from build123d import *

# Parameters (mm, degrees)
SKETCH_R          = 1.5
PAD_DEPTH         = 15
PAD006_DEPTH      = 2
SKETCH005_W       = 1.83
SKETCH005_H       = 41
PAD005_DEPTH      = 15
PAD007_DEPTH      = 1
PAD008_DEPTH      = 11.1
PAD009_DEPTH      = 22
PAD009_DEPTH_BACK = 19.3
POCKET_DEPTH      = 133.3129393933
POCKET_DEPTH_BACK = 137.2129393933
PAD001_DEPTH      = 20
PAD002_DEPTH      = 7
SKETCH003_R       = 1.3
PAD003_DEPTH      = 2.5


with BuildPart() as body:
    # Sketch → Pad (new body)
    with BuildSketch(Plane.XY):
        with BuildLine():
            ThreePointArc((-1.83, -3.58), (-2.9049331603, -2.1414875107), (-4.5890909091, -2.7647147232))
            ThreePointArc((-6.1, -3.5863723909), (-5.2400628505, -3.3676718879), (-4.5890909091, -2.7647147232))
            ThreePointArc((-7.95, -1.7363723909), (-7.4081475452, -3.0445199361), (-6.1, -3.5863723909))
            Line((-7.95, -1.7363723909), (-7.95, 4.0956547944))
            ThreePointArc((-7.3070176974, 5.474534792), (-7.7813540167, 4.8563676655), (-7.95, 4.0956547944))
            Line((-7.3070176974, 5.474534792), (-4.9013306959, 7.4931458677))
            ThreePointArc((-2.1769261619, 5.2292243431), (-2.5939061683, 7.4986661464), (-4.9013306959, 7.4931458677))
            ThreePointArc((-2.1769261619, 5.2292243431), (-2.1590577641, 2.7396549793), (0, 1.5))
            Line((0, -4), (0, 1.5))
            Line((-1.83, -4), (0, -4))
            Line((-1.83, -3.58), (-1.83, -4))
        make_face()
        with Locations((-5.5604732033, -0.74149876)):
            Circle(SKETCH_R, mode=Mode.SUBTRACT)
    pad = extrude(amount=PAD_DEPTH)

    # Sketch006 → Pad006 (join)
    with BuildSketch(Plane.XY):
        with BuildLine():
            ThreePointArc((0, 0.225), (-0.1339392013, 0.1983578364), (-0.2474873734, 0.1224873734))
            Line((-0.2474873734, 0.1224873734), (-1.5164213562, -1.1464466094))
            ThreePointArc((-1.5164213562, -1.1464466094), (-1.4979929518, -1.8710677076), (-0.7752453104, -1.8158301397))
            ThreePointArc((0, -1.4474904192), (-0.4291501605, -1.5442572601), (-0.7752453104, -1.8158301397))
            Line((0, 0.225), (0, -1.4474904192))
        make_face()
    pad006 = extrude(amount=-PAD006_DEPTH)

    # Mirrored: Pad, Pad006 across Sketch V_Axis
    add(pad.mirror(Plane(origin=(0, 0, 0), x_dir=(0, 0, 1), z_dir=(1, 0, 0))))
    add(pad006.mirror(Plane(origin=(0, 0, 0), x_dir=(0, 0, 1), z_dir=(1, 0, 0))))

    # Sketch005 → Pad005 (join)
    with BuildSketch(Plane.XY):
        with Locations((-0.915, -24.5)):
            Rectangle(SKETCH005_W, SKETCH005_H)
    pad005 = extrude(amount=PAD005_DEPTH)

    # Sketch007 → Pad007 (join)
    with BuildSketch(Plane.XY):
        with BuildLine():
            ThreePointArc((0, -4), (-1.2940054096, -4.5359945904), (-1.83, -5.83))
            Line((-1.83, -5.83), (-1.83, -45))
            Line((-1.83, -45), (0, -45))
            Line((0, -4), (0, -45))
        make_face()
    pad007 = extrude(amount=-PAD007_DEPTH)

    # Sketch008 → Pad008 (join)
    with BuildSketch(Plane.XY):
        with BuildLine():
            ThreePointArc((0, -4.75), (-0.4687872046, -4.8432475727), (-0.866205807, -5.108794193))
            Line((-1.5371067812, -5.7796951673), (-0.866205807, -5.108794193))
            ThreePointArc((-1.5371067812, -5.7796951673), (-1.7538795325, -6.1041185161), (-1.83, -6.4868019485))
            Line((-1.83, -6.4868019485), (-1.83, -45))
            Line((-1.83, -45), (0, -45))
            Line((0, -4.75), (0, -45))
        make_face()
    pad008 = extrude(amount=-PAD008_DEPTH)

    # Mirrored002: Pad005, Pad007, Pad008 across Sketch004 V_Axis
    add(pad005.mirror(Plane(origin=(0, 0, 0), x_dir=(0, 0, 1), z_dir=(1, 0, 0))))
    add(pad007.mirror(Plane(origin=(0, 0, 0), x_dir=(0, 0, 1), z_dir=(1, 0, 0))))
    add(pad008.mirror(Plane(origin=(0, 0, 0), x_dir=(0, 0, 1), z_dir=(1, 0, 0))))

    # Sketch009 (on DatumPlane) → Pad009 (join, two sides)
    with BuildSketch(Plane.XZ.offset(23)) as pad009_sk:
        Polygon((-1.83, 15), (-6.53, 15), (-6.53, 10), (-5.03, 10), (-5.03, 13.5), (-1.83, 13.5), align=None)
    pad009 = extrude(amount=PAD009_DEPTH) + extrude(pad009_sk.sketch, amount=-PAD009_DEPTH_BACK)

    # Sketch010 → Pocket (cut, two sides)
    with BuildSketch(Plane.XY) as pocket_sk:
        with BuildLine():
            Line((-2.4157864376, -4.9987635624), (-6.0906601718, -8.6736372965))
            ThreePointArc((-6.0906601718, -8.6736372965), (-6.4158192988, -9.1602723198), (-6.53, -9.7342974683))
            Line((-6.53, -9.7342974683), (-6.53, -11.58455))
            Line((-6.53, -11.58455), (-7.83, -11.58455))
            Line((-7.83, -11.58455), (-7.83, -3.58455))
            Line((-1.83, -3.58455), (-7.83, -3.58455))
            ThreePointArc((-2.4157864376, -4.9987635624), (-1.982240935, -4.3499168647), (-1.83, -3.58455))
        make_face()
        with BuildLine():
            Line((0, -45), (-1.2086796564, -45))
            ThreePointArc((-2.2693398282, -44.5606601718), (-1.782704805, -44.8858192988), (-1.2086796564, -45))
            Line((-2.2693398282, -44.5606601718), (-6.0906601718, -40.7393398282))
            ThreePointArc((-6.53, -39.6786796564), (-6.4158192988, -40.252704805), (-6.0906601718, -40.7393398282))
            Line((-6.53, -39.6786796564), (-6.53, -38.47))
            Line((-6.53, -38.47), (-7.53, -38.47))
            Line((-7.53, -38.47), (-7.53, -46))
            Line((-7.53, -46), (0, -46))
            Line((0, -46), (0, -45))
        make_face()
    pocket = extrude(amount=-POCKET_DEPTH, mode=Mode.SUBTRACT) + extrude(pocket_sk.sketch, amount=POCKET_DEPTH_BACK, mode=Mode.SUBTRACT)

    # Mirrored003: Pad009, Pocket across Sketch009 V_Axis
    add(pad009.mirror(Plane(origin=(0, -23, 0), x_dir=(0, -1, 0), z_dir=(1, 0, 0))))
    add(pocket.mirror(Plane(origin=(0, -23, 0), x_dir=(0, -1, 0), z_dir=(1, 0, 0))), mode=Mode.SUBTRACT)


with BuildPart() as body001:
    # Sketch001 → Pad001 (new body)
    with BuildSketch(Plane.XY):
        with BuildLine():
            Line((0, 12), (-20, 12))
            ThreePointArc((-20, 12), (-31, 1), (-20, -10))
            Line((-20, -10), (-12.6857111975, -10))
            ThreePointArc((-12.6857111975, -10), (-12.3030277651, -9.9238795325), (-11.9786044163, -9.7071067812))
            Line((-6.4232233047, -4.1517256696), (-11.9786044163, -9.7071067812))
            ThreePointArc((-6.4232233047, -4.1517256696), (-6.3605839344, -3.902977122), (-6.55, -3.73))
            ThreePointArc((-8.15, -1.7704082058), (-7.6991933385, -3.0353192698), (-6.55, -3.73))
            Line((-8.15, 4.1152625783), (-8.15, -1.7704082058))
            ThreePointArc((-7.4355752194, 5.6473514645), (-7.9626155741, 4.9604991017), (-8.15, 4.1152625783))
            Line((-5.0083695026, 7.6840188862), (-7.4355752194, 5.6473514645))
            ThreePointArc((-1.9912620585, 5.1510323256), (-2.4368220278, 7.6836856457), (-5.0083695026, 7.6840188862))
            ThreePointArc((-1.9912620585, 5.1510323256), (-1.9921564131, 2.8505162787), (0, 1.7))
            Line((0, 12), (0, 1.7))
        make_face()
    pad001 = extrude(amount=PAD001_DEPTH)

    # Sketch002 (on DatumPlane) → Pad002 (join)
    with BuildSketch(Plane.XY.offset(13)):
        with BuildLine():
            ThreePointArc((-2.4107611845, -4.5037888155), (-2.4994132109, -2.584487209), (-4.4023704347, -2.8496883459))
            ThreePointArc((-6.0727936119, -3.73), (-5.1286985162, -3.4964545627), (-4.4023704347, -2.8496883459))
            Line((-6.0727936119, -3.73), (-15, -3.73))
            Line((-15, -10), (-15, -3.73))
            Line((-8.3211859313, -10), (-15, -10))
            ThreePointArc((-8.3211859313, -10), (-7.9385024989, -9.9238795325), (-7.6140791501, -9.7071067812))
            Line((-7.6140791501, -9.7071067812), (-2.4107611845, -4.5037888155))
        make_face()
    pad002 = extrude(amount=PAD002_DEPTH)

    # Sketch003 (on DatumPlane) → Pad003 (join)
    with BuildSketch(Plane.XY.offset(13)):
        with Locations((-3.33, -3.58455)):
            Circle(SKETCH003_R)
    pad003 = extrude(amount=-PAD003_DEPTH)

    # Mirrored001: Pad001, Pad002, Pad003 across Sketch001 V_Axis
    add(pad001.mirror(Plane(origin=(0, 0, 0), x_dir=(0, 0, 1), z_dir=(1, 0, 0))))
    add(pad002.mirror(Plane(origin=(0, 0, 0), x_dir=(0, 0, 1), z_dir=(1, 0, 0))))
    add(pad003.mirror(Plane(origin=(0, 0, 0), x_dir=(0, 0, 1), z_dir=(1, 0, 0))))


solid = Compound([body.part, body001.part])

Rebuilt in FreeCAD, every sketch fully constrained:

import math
import FreeCAD as App
import Part
import Sketcher
Q = App.Units.Quantity


def add_polygon(sketch, points):
    """Adds a closed chain of lines whose ends are joined by coincident constraints."""
    first, n = sketch.GeometryCount, len(points)
    for a, b in zip(points, points[1:] + points[:1]):
        sketch.addGeometry(Part.LineSegment(App.Vector(*a, 0), App.Vector(*b, 0)), False)
    for i in range(n):
        sketch.addConstraint(Sketcher.Constraint("Coincident", first + i, 2, first + (i + 1) % n, 1))

doc = App.newDocument("Part")
params = doc.addObject("Spreadsheet::Sheet", "Params")
for row, (alias, value) in enumerate([
    ("sketch1_diameter", "3 mm"),
    ("sketch1_radius", "2.5 mm"),
    ("sketch1_radius2", "1.8 mm"),
    ("sketch1_radius3", "1.85 mm"),
    ("sketch1_height", "5.5 mm"),
    ("pad1_length", "15 mm"),
    ("sketch2_radius", "1 mm"),
    ("sketch2_radius2", "0.5 mm"),
    ("sketch2_radius3", "0.35 mm"),
    ("pad2_length", "2 mm"),
    ("sketch3_height", "41 mm"),
    ("sketch3_width", "1.83 mm"),
    ("pad3_length", "15 mm"),
    ("sketch4_height", "41 mm"),
    ("sketch4_radius", "1.83 mm"),
    ("pad4_length", "1 mm"),
    ("sketch5_radius", "1 mm"),
    ("sketch5_width", "1.83 mm"),
    ("sketch5_height", "40.25 mm"),
    ("pad5_length", "11.1 mm"),
    ("sketch6_height", "5 mm"),
    ("sketch6_width", "4.7 mm"),
    ("sketch6_width2", "1.5 mm"),
    ("pad6_length", "22 mm"),
    ("pad6_length2", "19.3 mm"),
    ("sketch7_radius", "2 mm"),
    ("sketch7_radius2", "1.5 mm"),
    ("sketch7_width", "6 mm"),
    ("sketch7_width2", "1 mm"),
    ("sketch7_height", "8 mm"),
    ("sketch8_radius", "11 mm"),
    ("sketch8_radius2", "1 mm"),
    ("sketch8_radius3", "2 mm"),
    ("sketch8_radius4", "2.3 mm"),
    ("sketch8_width", "20 mm"),
    ("pad7_length", "20 mm"),
    ("sketch9_radius", "1 mm"),
    ("sketch9_radius2", "1.3 mm"),
    ("sketch9_height", "6.27 mm"),
    ("pad8_length", "7 mm"),
    ("sketch10_diameter", "2.6 mm"),
    ("pad9_length", "2.5 mm"),
], start=1):
    params.set(f"A{row}", alias)
    params.set(f"B{row}", "=" + value)
    params.setAlias(f"B{row}", alias)

body = doc.addObject("PartDesign::Body", "Body")

# Sketch on XY plane
sketch1 = doc.addObject("Sketcher::SketchObject", "Sketch")
body.addObject(sketch1)
sketch1.AttachmentSupport = (doc.XY_Plane, [""])
sketch1.MapMode = "FlatFace"
sketch1.addGeometry(Part.ArcOfCircle(Part.Circle(App.Vector(-3.33, -3.58, 0), App.Vector(0, 0, 1), 1.5), math.radians(0), math.radians(147.076176)), False)
sketch1.addGeometry(Part.LineSegment(App.Vector(-1.83, -3.58, 0), App.Vector(-1.83, -4, 0)), False)
sketch1.addGeometry(Part.LineSegment(App.Vector(-1.83, -4, 0), App.Vector(0, -4, 0)), False)
sketch1.addGeometry(Part.LineSegment(App.Vector(0, -4, 0), App.Vector(0, 1.5, 0)), False)
sketch1.addGeometry(Part.ArcOfCircle(Part.Circle(App.Vector(0, 4, 0), App.Vector(0, 0, 1), 2.5), math.radians(150.548296), math.radians(270)), False)
sketch1.addGeometry(Part.ArcOfCircle(Part.Circle(App.Vector(-3.744313, 6.114266, 0), App.Vector(0, 0, 1), 1.8), math.radians(-29.451704), math.radians(130)), False)
sketch1.addGeometry(Part.LineSegment(App.Vector(-4.901331, 7.493146, 0), App.Vector(-7.307018, 5.474535, 0)), False)
sketch1.addGeometry(Part.ArcOfCircle(Part.Circle(App.Vector(-6.15, 4.095655, 0), App.Vector(0, 0, 1), 1.8), math.radians(130), math.radians(180)), False)
sketch1.addGeometry(Part.LineSegment(App.Vector(-7.95, 4.095655, 0), App.Vector(-7.95, -1.736372, 0)), False)
sketch1.addGeometry(Part.ArcOfCircle(Part.Circle(App.Vector(-6.1, -1.736372, 0), App.Vector(0, 0, 1), 1.85), math.radians(180), math.radians(270)), False)
sketch1.addGeometry(Part.ArcOfCircle(Part.Circle(App.Vector(-6.1, -1.786372, 0), App.Vector(0, 0, 1), 1.8), math.radians(-90), math.radians(-32.923824)), False)
sketch1.addGeometry(Part.Circle(App.Vector(-5.560473, -0.741499, 0), App.Vector(0, 0, 1), 1.5), False)
sketch1.addConstraint(Sketcher.Constraint("Tangent", 0, 1, 1, 1))
sketch1.addConstraint(Sketcher.Constraint("Coincident", 1, 2, 2, 1))
sketch1.addConstraint(Sketcher.Constraint("Coincident", 2, 2, 3, 1))
sketch1.addConstraint(Sketcher.Constraint("Coincident", 3, 2, 4, 2))
sketch1.addConstraint(Sketcher.Constraint("Tangent", 4, 1, 5, 1))
sketch1.addConstraint(Sketcher.Constraint("Tangent", 5, 2, 6, 1))
sketch1.addConstraint(Sketcher.Constraint("Tangent", 6, 2, 7, 1))
sketch1.addConstraint(Sketcher.Constraint("Tangent", 7, 2, 8, 1))
sketch1.addConstraint(Sketcher.Constraint("Tangent", 8, 2, 9, 1))
sketch1.addConstraint(Sketcher.Constraint("Tangent", 9, 2, 10, 1))
sketch1.addConstraint(Sketcher.Constraint("Tangent", 10, 2, 0, 2))
sketch1.addConstraint(Sketcher.Constraint("Vertical", 1))
sketch1.addConstraint(Sketcher.Constraint("Horizontal", 2))
sketch1.addConstraint(Sketcher.Constraint("Vertical", 3))
sketch1.addConstraint(Sketcher.Constraint("Vertical", 8))
sketch1.addConstraint(Sketcher.Constraint("Equal", 5, 7))
sketch1.addConstraint(Sketcher.Constraint("Equal", 7, 10))
sketch1.addConstraint(Sketcher.Constraint("Equal", 0, 11))
sketch1.addConstraint(Sketcher.Constraint("PointOnObject", 4, 3, -2))
sketch1.addConstraint(Sketcher.Constraint("PointOnObject", 2, 2, -2))
sketch1.addConstraint(Sketcher.Constraint("Vertical", 9, 3, 10, 3))
sketch1.addConstraint(Sketcher.Constraint("Diameter", 11, Q("3 mm")))
sketch1.addConstraint(Sketcher.Constraint("Radius", 4, Q("2.5 mm")))
sketch1.addConstraint(Sketcher.Constraint("Radius", 5, Q("1.8 mm")))
sketch1.addConstraint(Sketcher.Constraint("Angle", 6, Q("-140 deg")))
sketch1.addConstraint(Sketcher.Constraint("Radius", 9, Q("1.85 mm")))
sketch1.addConstraint(Sketcher.Constraint("DistanceY", 3, 1, 3, 2, Q("5.5 mm")))
sketch1.addConstraint(Sketcher.Constraint("DistanceY", -1, 1, 4, 3, Q("4 mm")))
sketch1.addConstraint(Sketcher.Constraint("DistanceX", 2, 1, 2, 2, Q("1.83 mm")))
sketch1.addConstraint(Sketcher.Constraint("DistanceY", 1, 2, 1, 1, Q("0.42 mm")))
sketch1.addConstraint(Sketcher.Constraint("DistanceX", 9, 3, -1, 1, Q("6.1 mm")))
sketch1.addConstraint(Sketcher.Constraint("Distance", 6, Q("3.140401 mm")))
sketch1.addConstraint(Sketcher.Constraint("DistanceY", 11, 3, -1, 1, Q("0.741499 mm")))
sketch1.addConstraint(Sketcher.Constraint("DistanceX", 11, 3, 5, 3, Q("1.81616 mm")))
sketch1.setExpression("Constraints[21]", "Params.sketch1_diameter")
sketch1.setExpression("Constraints[22]", "Params.sketch1_radius")
sketch1.setExpression("Constraints[23]", "Params.sketch1_radius2")
sketch1.setExpression("Constraints[25]", "Params.sketch1_radius3")
sketch1.setExpression("Constraints[26]", "Params.sketch1_height")
pad1 = doc.addObject("PartDesign::Pad", "Pad")
body.addObject(pad1)
pad1.Profile = sketch1
pad1.setExpression("Length", "Params.pad1_length")

# Sketch on XY plane
sketch2 = doc.addObject("Sketcher::SketchObject", "Sketch001")
body.addObject(sketch2)
sketch2.AttachmentSupport = (doc.XY_Plane, [""])
sketch2.MapMode = "FlatFace"
sketch2.addGeometry(Part.ArcOfCircle(Part.Circle(App.Vector(0, -0.125, 0), App.Vector(0, 0, 1), 0.35), math.radians(90), math.radians(135)), False)
sketch2.addGeometry(Part.LineSegment(App.Vector(-0.247487, 0.122487, 0), App.Vector(-1.516421, -1.146447, 0)), False)
sketch2.addGeometry(Part.ArcOfCircle(Part.Circle(App.Vector(-1.162868, -1.5, 0), App.Vector(0, 0, 1), 0.5), math.radians(135), math.radians(320.827279)), False)
sketch2.addGeometry(Part.ArcOfCircle(Part.Circle(App.Vector(0, -2.44749, 0), App.Vector(0, 0, 1), 1), math.radians(90), math.radians(140.827279)), False)
sketch2.addGeometry(Part.LineSegment(App.Vector(0, -1.44749, 0), App.Vector(0, 0.225, 0)), False)
sketch2.addConstraint(Sketcher.Constraint("Tangent", 0, 2, 1, 1))
sketch2.addConstraint(Sketcher.Constraint("Tangent", 1, 2, 2, 1))
sketch2.addConstraint(Sketcher.Constraint("Tangent", 2, 2, 3, 2))
sketch2.addConstraint(Sketcher.Constraint("Coincident", 3, 1, 4, 1))
sketch2.addConstraint(Sketcher.Constraint("Coincident", 4, 2, 0, 1))
sketch2.addConstraint(Sketcher.Constraint("Vertical", 4))
sketch2.addConstraint(Sketcher.Constraint("PointOnObject", 0, 3, -2))
sketch2.addConstraint(Sketcher.Constraint("PointOnObject", 3, 3, -2))
sketch2.addConstraint(Sketcher.Constraint("PointOnObject", 3, 1, -2))
sketch2.addConstraint(Sketcher.Constraint("Radius", 3, Q("1 mm")))
sketch2.addConstraint(Sketcher.Constraint("Radius", 2, Q("0.5 mm")))
sketch2.addConstraint(Sketcher.Constraint("Angle", 1, Q("-135 deg")))
sketch2.addConstraint(Sketcher.Constraint("Radius", 0, Q("0.35 mm")))
sketch2.addConstraint(Sketcher.Constraint("DistanceY", 2, 3, -1, 1, Q("1.5 mm")))
sketch2.addConstraint(Sketcher.Constraint("DistanceY", 0, 3, -1, 1, Q("0.125 mm")))
sketch2.setExpression("Constraints[9]", "Params.sketch2_radius")
sketch2.setExpression("Constraints[10]", "Params.sketch2_radius2")
sketch2.setExpression("Constraints[12]", "Params.sketch2_radius3")
pad2 = doc.addObject("PartDesign::Pad", "Pad001")
body.addObject(pad2)
pad2.Profile = sketch2
pad2.setExpression("Length", "Params.pad2_length")
pad2.Reversed = True
doc.recompute()

mirrored = doc.addObject("PartDesign::Mirrored", "Mirrored")
body.addObject(mirrored)
mirrored.Originals = [pad1, pad2]
mirrored.MirrorPlane = (doc.YZ_Plane, [""])
body.Tip = mirrored

# Sketch on XY plane
sketch3 = doc.addObject("Sketcher::SketchObject", "Sketch002")
body.addObject(sketch3)
sketch3.AttachmentSupport = (doc.XY_Plane, [""])
sketch3.MapMode = "FlatFace"
add_polygon(sketch3, [(-1.83, -4), (-1.83, -45), (0, -45), (0, -4)])  # lines 0-3
sketch3.addConstraint(Sketcher.Constraint("Vertical", 0))
sketch3.addConstraint(Sketcher.Constraint("Horizontal", 1))
sketch3.addConstraint(Sketcher.Constraint("Vertical", 2))
sketch3.addConstraint(Sketcher.Constraint("Horizontal", 3))
sketch3.addConstraint(Sketcher.Constraint("PointOnObject", 1, 2, -2))
sketch3.addConstraint(Sketcher.Constraint("DistanceY", 0, 2, 0, 1, Q("41 mm")))
sketch3.addConstraint(Sketcher.Constraint("DistanceY", 0, 2, -1, 1, Q("45 mm")))
sketch3.addConstraint(Sketcher.Constraint("DistanceX", 1, 1, 1, 2, Q("1.83 mm")))
sketch3.setExpression("Constraints[9]", "Params.sketch3_height")
sketch3.setExpression("Constraints[11]", "Params.sketch3_width")
pad3 = doc.addObject("PartDesign::Pad", "Pad002")
body.addObject(pad3)
pad3.Profile = sketch3
pad3.setExpression("Length", "Params.pad3_length")

# Sketch on XY plane
sketch4 = doc.addObject("Sketcher::SketchObject", "Sketch003")
body.addObject(sketch4)
sketch4.AttachmentSupport = (doc.XY_Plane, [""])
sketch4.MapMode = "FlatFace"
sketch4.addGeometry(Part.ArcOfCircle(Part.Circle(App.Vector(0, -5.83, 0), App.Vector(0, 0, 1), 1.83), math.radians(90), math.radians(180)), False)
sketch4.addGeometry(Part.LineSegment(App.Vector(-1.83, -5.83, 0), App.Vector(-1.83, -45, 0)), False)
sketch4.addGeometry(Part.LineSegment(App.Vector(-1.83, -45, 0), App.Vector(0, -45, 0)), False)
sketch4.addGeometry(Part.LineSegment(App.Vector(0, -45, 0), App.Vector(0, -4, 0)), False)
sketch4.addConstraint(Sketcher.Constraint("Tangent", 0, 2, 1, 1))
sketch4.addConstraint(Sketcher.Constraint("Coincident", 1, 2, 2, 1))
sketch4.addConstraint(Sketcher.Constraint("Coincident", 2, 2, 3, 1))
sketch4.addConstraint(Sketcher.Constraint("Coincident", 3, 2, 0, 1))
sketch4.addConstraint(Sketcher.Constraint("Vertical", 1))
sketch4.addConstraint(Sketcher.Constraint("Horizontal", 2))
sketch4.addConstraint(Sketcher.Constraint("Vertical", 3))
sketch4.addConstraint(Sketcher.Constraint("PointOnObject", 0, 3, -2))
sketch4.addConstraint(Sketcher.Constraint("PointOnObject", 2, 2, -2))
sketch4.addConstraint(Sketcher.Constraint("DistanceY", 3, 1, 3, 2, Q("41 mm")))
sketch4.addConstraint(Sketcher.Constraint("Radius", 0, Q("1.83 mm")))
sketch4.addConstraint(Sketcher.Constraint("DistanceY", 1, 2, -1, 1, Q("45 mm")))
sketch4.setExpression("Constraints[9]", "Params.sketch4_height")
sketch4.setExpression("Constraints[10]", "Params.sketch4_radius")
pad4 = doc.addObject("PartDesign::Pad", "Pad003")
body.addObject(pad4)
pad4.Profile = sketch4
pad4.setExpression("Length", "Params.pad4_length")
pad4.Reversed = True

# Sketch on XY plane
sketch5 = doc.addObject("Sketcher::SketchObject", "Sketch004")
body.addObject(sketch5)
sketch5.AttachmentSupport = (doc.XY_Plane, [""])
sketch5.MapMode = "FlatFace"
sketch5.addGeometry(Part.ArcOfCircle(Part.Circle(App.Vector(0, -5.975, 0), App.Vector(0, 0, 1), 1.225), math.radians(90), math.radians(135)), False)
sketch5.addGeometry(Part.LineSegment(App.Vector(-0.866206, -5.108794, 0), App.Vector(-1.537107, -5.779695, 0)), False)
sketch5.addGeometry(Part.ArcOfCircle(Part.Circle(App.Vector(-0.83, -6.486802, 0), App.Vector(0, 0, 1), 1), math.radians(135), math.radians(180)), False)
sketch5.addGeometry(Part.LineSegment(App.Vector(-1.83, -6.486802, 0), App.Vector(-1.83, -45, 0)), False)
sketch5.addGeometry(Part.LineSegment(App.Vector(-1.83, -45, 0), App.Vector(0, -45, 0)), False)
sketch5.addGeometry(Part.LineSegment(App.Vector(0, -45, 0), App.Vector(0, -4.75, 0)), False)
sketch5.addConstraint(Sketcher.Constraint("Tangent", 0, 2, 1, 1))
sketch5.addConstraint(Sketcher.Constraint("Tangent", 1, 2, 2, 1))
sketch5.addConstraint(Sketcher.Constraint("Tangent", 2, 2, 3, 1))
sketch5.addConstraint(Sketcher.Constraint("Coincident", 3, 2, 4, 1))
sketch5.addConstraint(Sketcher.Constraint("Coincident", 4, 2, 5, 1))
sketch5.addConstraint(Sketcher.Constraint("Coincident", 5, 2, 0, 1))
sketch5.addConstraint(Sketcher.Constraint("Vertical", 3))
sketch5.addConstraint(Sketcher.Constraint("Horizontal", 4))
sketch5.addConstraint(Sketcher.Constraint("Vertical", 5))
sketch5.addConstraint(Sketcher.Constraint("PointOnObject", 0, 3, -2))
sketch5.addConstraint(Sketcher.Constraint("PointOnObject", 4, 2, -2))
sketch5.addConstraint(Sketcher.Constraint("Radius", 2, Q("1 mm")))
sketch5.addConstraint(Sketcher.Constraint("Angle", 1, Q("-135 deg")))
sketch5.addConstraint(Sketcher.Constraint("DistanceY", 3, 2, -1, 1, Q("45 mm")))
sketch5.addConstraint(Sketcher.Constraint("Radius", 0, Q("1.225 mm")))
sketch5.addConstraint(Sketcher.Constraint("DistanceX", 4, 1, 4, 2, Q("1.83 mm")))
sketch5.addConstraint(Sketcher.Constraint("DistanceY", 5, 1, 5, 2, Q("40.25 mm")))
sketch5.setExpression("Constraints[11]", "Params.sketch5_radius")
sketch5.setExpression("Constraints[15]", "Params.sketch5_width")
sketch5.setExpression("Constraints[16]", "Params.sketch5_height")
pad5 = doc.addObject("PartDesign::Pad", "Pad004")
body.addObject(pad5)
pad5.Profile = sketch5
pad5.setExpression("Length", "Params.pad5_length")
pad5.Reversed = True
doc.recompute()

mirrored2 = doc.addObject("PartDesign::Mirrored", "Mirrored001")
body.addObject(mirrored2)
mirrored2.Originals = [pad3, pad4, pad5]
mirrored2.MirrorPlane = (doc.YZ_Plane, [""])
body.Tip = mirrored2

# Sketch on XZ plane
sketch6 = doc.addObject("Sketcher::SketchObject", "Sketch005")
body.addObject(sketch6)
sketch6.AttachmentSupport = (doc.XZ_Plane, [""])
sketch6.MapMode = "FlatFace"
sketch6.AttachmentOffset = App.Placement(App.Vector(0, 0, 23), App.Rotation())
add_polygon(sketch6, [(-1.83, 15), (-6.53, 15), (-6.53, 10), (-5.03, 10), (-5.03, 13.5), (-1.83, 13.5)])  # lines 0-5
sketch6.addConstraint(Sketcher.Constraint("Horizontal", 0))
sketch6.addConstraint(Sketcher.Constraint("Vertical", 1))
sketch6.addConstraint(Sketcher.Constraint("Horizontal", 2))
sketch6.addConstraint(Sketcher.Constraint("Vertical", 3))
sketch6.addConstraint(Sketcher.Constraint("Horizontal", 4))
sketch6.addConstraint(Sketcher.Constraint("Vertical", 5))
sketch6.addConstraint(Sketcher.Constraint("Equal", 2, 5))
sketch6.addConstraint(Sketcher.Constraint("DistanceY", 1, 2, 1, 1, Q("5 mm")))
sketch6.addConstraint(Sketcher.Constraint("DistanceX", 0, 2, 0, 1, Q("4.7 mm")))
sketch6.addConstraint(Sketcher.Constraint("DistanceX", 2, 1, 2, 2, Q("1.5 mm")))
sketch6.addConstraint(Sketcher.Constraint("DistanceY", -1, 1, 0, 2, Q("15 mm")))
sketch6.addConstraint(Sketcher.Constraint("DistanceX", 0, 2, -1, 1, Q("6.53 mm")))
sketch6.setExpression("Constraints[13]", "Params.sketch6_height")
sketch6.setExpression("Constraints[14]", "Params.sketch6_width")
sketch6.setExpression("Constraints[15]", "Params.sketch6_width2")
pad6 = doc.addObject("PartDesign::Pad", "Pad005")
body.addObject(pad6)
pad6.Profile = sketch6
pad6.Type = "TwoLengths"
pad6.setExpression("Length", "Params.pad6_length")
pad6.setExpression("Length2", "Params.pad6_length2")

# Sketch on XY plane
sketch7 = doc.addObject("Sketcher::SketchObject", "Sketch006")
body.addObject(sketch7)
sketch7.AttachmentSupport = (doc.XY_Plane, [""])
sketch7.MapMode = "FlatFace"
sketch7.addGeometry(Part.LineSegment(App.Vector(-6.09066, -8.673637, 0), App.Vector(-2.415786, -4.998764, 0)), False)
sketch7.addGeometry(Part.ArcOfCircle(Part.Circle(App.Vector(-3.83, -3.58455, 0), App.Vector(0, 0, 1), 2), math.radians(-45), math.radians(0)), False)
sketch7.addGeometry(Part.LineSegment(App.Vector(-1.83, -3.58455, 0), App.Vector(-7.83, -3.58455, 0)), False)
sketch7.addGeometry(Part.LineSegment(App.Vector(-7.83, -3.58455, 0), App.Vector(-7.83, -11.58455, 0)), False)
sketch7.addGeometry(Part.LineSegment(App.Vector(-7.83, -11.58455, 0), App.Vector(-6.53, -11.58455, 0)), False)
sketch7.addGeometry(Part.LineSegment(App.Vector(-6.53, -11.58455, 0), App.Vector(-6.53, -9.734297, 0)), False)
sketch7.addGeometry(Part.ArcOfCircle(Part.Circle(App.Vector(-5.03, -9.734297, 0), App.Vector(0, 0, 1), 1.5), math.radians(135), math.radians(180)), False)
sketch7.addGeometry(Part.LineSegment(App.Vector(0, -45, 0), App.Vector(-1.20868, -45, 0)), False)
sketch7.addGeometry(Part.ArcOfCircle(Part.Circle(App.Vector(-1.20868, -43.5, 0), App.Vector(0, 0, 1), 1.5), math.radians(-135), math.radians(-90)), False)
sketch7.addGeometry(Part.LineSegment(App.Vector(-2.26934, -44.56066, 0), App.Vector(-6.09066, -40.73934, 0)), False)
sketch7.addGeometry(Part.ArcOfCircle(Part.Circle(App.Vector(-5.03, -39.67868, 0), App.Vector(0, 0, 1), 1.5), math.radians(180), math.radians(225)), False)
sketch7.addGeometry(Part.LineSegment(App.Vector(-6.53, -39.67868, 0), App.Vector(-6.53, -38.47, 0)), False)
sketch7.addGeometry(Part.LineSegment(App.Vector(-6.53, -38.47, 0), App.Vector(-7.53, -38.47, 0)), False)
sketch7.addGeometry(Part.LineSegment(App.Vector(-7.53, -38.47, 0), App.Vector(-7.53, -46, 0)), False)
sketch7.addGeometry(Part.LineSegment(App.Vector(-7.53, -46, 0), App.Vector(0, -46, 0)), False)
sketch7.addGeometry(Part.LineSegment(App.Vector(0, -46, 0), App.Vector(0, -45, 0)), False)
sketch7.addConstraint(Sketcher.Constraint("Tangent", 0, 2, 1, 1))
sketch7.addConstraint(Sketcher.Constraint("Coincident", 1, 2, 2, 1))
sketch7.addConstraint(Sketcher.Constraint("Coincident", 2, 2, 3, 1))
sketch7.addConstraint(Sketcher.Constraint("Coincident", 3, 2, 4, 1))
sketch7.addConstraint(Sketcher.Constraint("Coincident", 4, 2, 5, 1))
sketch7.addConstraint(Sketcher.Constraint("Tangent", 5, 2, 6, 2))
sketch7.addConstraint(Sketcher.Constraint("Tangent", 6, 1, 0, 1))
sketch7.addConstraint(Sketcher.Constraint("Tangent", 7, 2, 8, 2))
sketch7.addConstraint(Sketcher.Constraint("Tangent", 8, 1, 9, 1))
sketch7.addConstraint(Sketcher.Constraint("Tangent", 9, 2, 10, 2))
sketch7.addConstraint(Sketcher.Constraint("Tangent", 10, 1, 11, 1))
sketch7.addConstraint(Sketcher.Constraint("Coincident", 11, 2, 12, 1))
sketch7.addConstraint(Sketcher.Constraint("Coincident", 12, 2, 13, 1))
sketch7.addConstraint(Sketcher.Constraint("Coincident", 13, 2, 14, 1))
sketch7.addConstraint(Sketcher.Constraint("Coincident", 14, 2, 15, 1))
sketch7.addConstraint(Sketcher.Constraint("Coincident", 15, 2, 7, 1))
sketch7.addConstraint(Sketcher.Constraint("Horizontal", 2))
sketch7.addConstraint(Sketcher.Constraint("Vertical", 3))
sketch7.addConstraint(Sketcher.Constraint("Horizontal", 4))
sketch7.addConstraint(Sketcher.Constraint("Vertical", 5))
sketch7.addConstraint(Sketcher.Constraint("Horizontal", 7))
sketch7.addConstraint(Sketcher.Constraint("Vertical", 11))
sketch7.addConstraint(Sketcher.Constraint("Horizontal", 12))
sketch7.addConstraint(Sketcher.Constraint("Vertical", 13))
sketch7.addConstraint(Sketcher.Constraint("Horizontal", 14))
sketch7.addConstraint(Sketcher.Constraint("Vertical", 15))
sketch7.addConstraint(Sketcher.Constraint("Equal", 6, 8))
sketch7.addConstraint(Sketcher.Constraint("Equal", 8, 10))
sketch7.addConstraint(Sketcher.Constraint("PointOnObject", 14, 2, -2))
sketch7.addConstraint(Sketcher.Constraint("Perpendicular", 0, 9))
sketch7.addConstraint(Sketcher.Constraint("Vertical", 6, 3, 10, 3))
sketch7.addConstraint(Sketcher.Constraint("Vertical", 6, 1, 9, 2))
sketch7.addConstraint(Sketcher.Constraint("Equal", 7, 11))
sketch7.addConstraint(Sketcher.Constraint("Equal", 14, 13))
sketch7.addConstraint(Sketcher.Constraint("Radius", 1, Q("2 mm")))
sketch7.addConstraint(Sketcher.Constraint("Radius", 6, Q("1.5 mm")))
sketch7.addConstraint(Sketcher.Constraint("DistanceX", 2, 2, 2, 1, Q("6 mm")))
sketch7.addConstraint(Sketcher.Constraint("DistanceX", 12, 2, 12, 1, Q("1 mm")))
sketch7.addConstraint(Sketcher.Constraint("DistanceY", 3, 2, 3, 1, Q("8 mm")))
sketch7.addConstraint(Sketcher.Constraint("DistanceX", 4, 1, 4, 2, Q("1.3 mm")))
sketch7.addConstraint(Sketcher.Constraint("DistanceY", 7, 2, -1, 1, Q("45 mm")))
sketch7.addConstraint(Sketcher.Constraint("DistanceY", 3, 2, 1, 3, Q("8 mm")))
sketch7.addConstraint(Sketcher.Constraint("DistanceX", 14, 1, 14, 2, Q("7.53 mm")))
sketch7.addConstraint(Sketcher.Constraint("DistanceX", 7, 2, 7, 1, Q("1.20868 mm")))
sketch7.addConstraint(Sketcher.Constraint("DistanceY", 1, 3, -1, 1, Q("3.58455 mm")))
sketch7.setExpression("Constraints[34]", "Params.sketch7_radius")
sketch7.setExpression("Constraints[35]", "Params.sketch7_radius2")
sketch7.setExpression("Constraints[36]", "Params.sketch7_width")
sketch7.setExpression("Constraints[37]", "Params.sketch7_width2")
sketch7.setExpression("Constraints[38]", "Params.sketch7_height")
pocket1 = doc.addObject("PartDesign::Pocket", "Pocket")
body.addObject(pocket1)
pocket1.Profile = sketch7
pocket1.Type = "ThroughAll"
pocket1.Midplane = True
doc.recompute()

mirrored3 = doc.addObject("PartDesign::Mirrored", "Mirrored002")
body.addObject(mirrored3)
mirrored3.Originals = [pad6, pocket1]
mirrored3.MirrorPlane = (doc.YZ_Plane, [""])
body.Tip = mirrored3
body2 = doc.addObject("PartDesign::Body", "Body001")

# Sketch on XY plane
sketch8 = doc.addObject("Sketcher::SketchObject", "Sketch007")
body2.addObject(sketch8)
sketch8.AttachmentSupport = (doc.getObject("XY_Plane001"), [""])
sketch8.MapMode = "FlatFace"
sketch8.addGeometry(Part.LineSegment(App.Vector(0, 12, 0), App.Vector(-20, 12, 0)), False)
sketch8.addGeometry(Part.ArcOfCircle(Part.Circle(App.Vector(-20, 1, 0), App.Vector(0, 0, 1), 11), math.radians(90), math.radians(270)), False)
sketch8.addGeometry(Part.LineSegment(App.Vector(-20, -10, 0), App.Vector(-12.685711, -10, 0)), False)
sketch8.addGeometry(Part.ArcOfCircle(Part.Circle(App.Vector(-12.685711, -9, 0), App.Vector(0, 0, 1), 1), math.radians(-90), math.radians(-45)), False)
sketch8.addGeometry(Part.LineSegment(App.Vector(-11.978604, -9.707107, 0), App.Vector(-6.423223, -4.151726, 0)), False)
sketch8.addGeometry(Part.ArcOfCircle(Part.Circle(App.Vector(-6.6, -3.974949, 0), App.Vector(0, 0, 1), 0.25), math.radians(-45), math.radians(78.463041)), False)
sketch8.addGeometry(Part.ArcOfCircle(Part.Circle(App.Vector(-6.15, -1.770408, 0), App.Vector(0, 0, 1), 2), math.radians(180), math.radians(258.463041)), False)
sketch8.addGeometry(Part.LineSegment(App.Vector(-8.15, -1.770408, 0), App.Vector(-8.15, 4.115263, 0)), False)
sketch8.addGeometry(Part.ArcOfCircle(Part.Circle(App.Vector(-6.15, 4.115263, 0), App.Vector(0, 0, 1), 2), math.radians(130), math.radians(180)), False)
sketch8.addGeometry(Part.LineSegment(App.Vector(-7.435575, 5.647351, 0), App.Vector(-5.00837, 7.684019, 0)), False)
sketch8.addGeometry(Part.ArcOfCircle(Part.Circle(App.Vector(-3.722794, 6.15193, 0), App.Vector(0, 0, 1), 2), math.radians(-30.029699), math.radians(130)), False)
sketch8.addGeometry(Part.ArcOfCircle(Part.Circle(App.Vector(0, 4, 0), App.Vector(0, 0, 1), 2.3), math.radians(149.970301), math.radians(270)), False)
sketch8.addGeometry(Part.LineSegment(App.Vector(0, 1.7, 0), App.Vector(0, 12, 0)), False)
sketch8.addConstraint(Sketcher.Constraint("Tangent", 0, 2, 1, 1))
sketch8.addConstraint(Sketcher.Constraint("Tangent", 1, 2, 2, 1))
sketch8.addConstraint(Sketcher.Constraint("Tangent", 2, 2, 3, 1))
sketch8.addConstraint(Sketcher.Constraint("Tangent", 3, 2, 4, 1))
sketch8.addConstraint(Sketcher.Constraint("Tangent", 4, 2, 5, 1))
sketch8.addConstraint(Sketcher.Constraint("Tangent", 5, 2, 6, 2))
sketch8.addConstraint(Sketcher.Constraint("Tangent", 6, 1, 7, 1))
sketch8.addConstraint(Sketcher.Constraint("Tangent", 7, 2, 8, 2))
sketch8.addConstraint(Sketcher.Constraint("Tangent", 8, 1, 9, 1))
sketch8.addConstraint(Sketcher.Constraint("Tangent", 9, 2, 10, 2))
sketch8.addConstraint(Sketcher.Constraint("Tangent", 10, 1, 11, 1))
sketch8.addConstraint(Sketcher.Constraint("Coincident", 11, 2, 12, 1))
sketch8.addConstraint(Sketcher.Constraint("Coincident", 12, 2, 0, 1))
sketch8.addConstraint(Sketcher.Constraint("Horizontal", 0))
sketch8.addConstraint(Sketcher.Constraint("Horizontal", 2))
sketch8.addConstraint(Sketcher.Constraint("Vertical", 7))
sketch8.addConstraint(Sketcher.Constraint("Vertical", 12))
sketch8.addConstraint(Sketcher.Constraint("Equal", 6, 8))
sketch8.addConstraint(Sketcher.Constraint("Equal", 8, 10))
sketch8.addConstraint(Sketcher.Constraint("PointOnObject", 11, 3, -2))
sketch8.addConstraint(Sketcher.Constraint("PointOnObject", 11, 2, -2))
sketch8.addConstraint(Sketcher.Constraint("Radius", 1, Q("11 mm")))
sketch8.addConstraint(Sketcher.Constraint("Radius", 3, Q("1 mm")))
sketch8.addConstraint(Sketcher.Constraint("Radius", 6, Q("2 mm")))
sketch8.addConstraint(Sketcher.Constraint("Radius", 11, Q("2.3 mm")))
sketch8.addConstraint(Sketcher.Constraint("DistanceX", 0, 2, 0, 1, Q("20 mm")))
sketch8.addConstraint(Sketcher.Constraint("Angle", 4, Q("45 deg")))
sketch8.addConstraint(Sketcher.Constraint("Angle", 9, Q("40 deg")))
sketch8.addConstraint(Sketcher.Constraint("Radius", 5, Q("0.25 mm")))
sketch8.addConstraint(Sketcher.Constraint("DistanceY", 12, 1, 12, 2, Q("10.3 mm")))
sketch8.addConstraint(Sketcher.Constraint("DistanceY", -1, 1, 1, 3, Q("1 mm")))
sketch8.addConstraint(Sketcher.Constraint("DistanceX", 5, 3, -1, 1, Q("6.6 mm")))
sketch8.addConstraint(Sketcher.Constraint("DistanceX", 5, 2, 6, 3, Q("0.4 mm")))
sketch8.addConstraint(Sketcher.Constraint("DistanceY", 5, 2, -1, 1, Q("3.73 mm")))
sketch8.addConstraint(Sketcher.Constraint("DistanceY", 7, 1, 7, 2, Q("5.885671 mm")))
sketch8.setExpression("Constraints[21]", "Params.sketch8_radius")
sketch8.setExpression("Constraints[22]", "Params.sketch8_radius2")
sketch8.setExpression("Constraints[23]", "Params.sketch8_radius3")
sketch8.setExpression("Constraints[24]", "Params.sketch8_radius4")
sketch8.setExpression("Constraints[25]", "Params.sketch8_width")
pad7 = doc.addObject("PartDesign::Pad", "Pad006")
body2.addObject(pad7)
pad7.Profile = sketch8
pad7.setExpression("Length", "Params.pad7_length")

# Sketch on XY plane
sketch9 = doc.addObject("Sketcher::SketchObject", "Sketch008")
body2.addObject(sketch9)
sketch9.AttachmentSupport = (doc.getObject("XY_Plane001"), [""])
sketch9.MapMode = "FlatFace"
sketch9.AttachmentOffset = App.Placement(App.Vector(0, 0, 13), App.Rotation())
sketch9.addGeometry(Part.ArcOfCircle(Part.Circle(App.Vector(-3.33, -3.58455, 0), App.Vector(0, 0, 1), 1.3), math.radians(-45), math.radians(145.578388)), False)
sketch9.addGeometry(Part.ArcOfCircle(Part.Circle(App.Vector(-6.072794, -1.705, 0), App.Vector(0, 0, 1), 2.025), math.radians(-90), math.radians(-34.421612)), False)
sketch9.addGeometry(Part.LineSegment(App.Vector(-6.072794, -3.73, 0), App.Vector(-15, -3.73, 0)), False)
sketch9.addGeometry(Part.LineSegment(App.Vector(-15, -3.73, 0), App.Vector(-15, -10, 0)), False)
sketch9.addGeometry(Part.LineSegment(App.Vector(-15, -10, 0), App.Vector(-8.321186, -10, 0)), False)
sketch9.addGeometry(Part.ArcOfCircle(Part.Circle(App.Vector(-8.321186, -9, 0), App.Vector(0, 0, 1), 1), math.radians(-90), math.radians(-45)), False)
sketch9.addGeometry(Part.LineSegment(App.Vector(-7.614079, -9.707107, 0), App.Vector(-2.410761, -4.503789, 0)), False)
sketch9.addConstraint(Sketcher.Constraint("Tangent", 0, 2, 1, 2))
sketch9.addConstraint(Sketcher.Constraint("Tangent", 1, 1, 2, 1))
sketch9.addConstraint(Sketcher.Constraint("Coincident", 2, 2, 3, 1))
sketch9.addConstraint(Sketcher.Constraint("Coincident", 3, 2, 4, 1))
sketch9.addConstraint(Sketcher.Constraint("Tangent", 4, 2, 5, 1))
sketch9.addConstraint(Sketcher.Constraint("Tangent", 5, 2, 6, 1))
sketch9.addConstraint(Sketcher.Constraint("Tangent", 6, 2, 0, 1))
sketch9.addConstraint(Sketcher.Constraint("Horizontal", 2))
sketch9.addConstraint(Sketcher.Constraint("Vertical", 3))
sketch9.addConstraint(Sketcher.Constraint("Horizontal", 4))
sketch9.addConstraint(Sketcher.Constraint("Radius", 5, Q("1 mm")))
sketch9.addConstraint(Sketcher.Constraint("Radius", 0, Q("1.3 mm")))
sketch9.addConstraint(Sketcher.Constraint("Angle", 6, Q("45 deg")))
sketch9.addConstraint(Sketcher.Constraint("DistanceY", 5, 3, -1, 1, Q("9 mm")))
sketch9.addConstraint(Sketcher.Constraint("DistanceX", 2, 2, -1, 1, Q("15 mm")))
sketch9.addConstraint(Sketcher.Constraint("Radius", 1, Q("2.025 mm")))
sketch9.addConstraint(Sketcher.Constraint("DistanceY", 3, 2, 3, 1, Q("6.27 mm")))
sketch9.addConstraint(Sketcher.Constraint("DistanceX", 0, 3, -1, 1, Q("3.33 mm")))
sketch9.addConstraint(Sketcher.Constraint("DistanceY", 6, 2, 0, 2, Q("1.6541 mm")))
sketch9.setExpression("Constraints[10]", "Params.sketch9_radius")
sketch9.setExpression("Constraints[11]", "Params.sketch9_radius2")
sketch9.setExpression("Constraints[16]", "Params.sketch9_height")
pad8 = doc.addObject("PartDesign::Pad", "Pad007")
body2.addObject(pad8)
pad8.Profile = sketch9
pad8.setExpression("Length", "Params.pad8_length")

# Sketch on XY plane
sketch10 = doc.addObject("Sketcher::SketchObject", "Sketch009")
body2.addObject(sketch10)
sketch10.AttachmentSupport = (doc.getObject("XY_Plane001"), [""])
sketch10.MapMode = "FlatFace"
sketch10.AttachmentOffset = App.Placement(App.Vector(0, 0, 13), App.Rotation())
sketch10.addGeometry(Part.Circle(App.Vector(-3.33, -3.58455, 0), App.Vector(0, 0, 1), 1.3), False)
sketch10.addConstraint(Sketcher.Constraint("Diameter", 0, Q("2.6 mm")))
sketch10.addConstraint(Sketcher.Constraint("DistanceX", 0, 3, -1, 1, Q("3.33 mm")))
sketch10.addConstraint(Sketcher.Constraint("DistanceY", 0, 3, -1, 1, Q("3.58455 mm")))
sketch10.setExpression("Constraints[0]", "Params.sketch10_diameter")
pad9 = doc.addObject("PartDesign::Pad", "Pad008")
body2.addObject(pad9)
pad9.Profile = sketch10
pad9.setExpression("Length", "Params.pad9_length")
pad9.Reversed = True
doc.recompute()

mirrored4 = doc.addObject("PartDesign::Mirrored", "Mirrored003")
body2.addObject(mirrored4)
mirrored4.Originals = [pad7, pad8, pad9]
mirrored4.MirrorPlane = (doc.getObject("YZ_Plane001"), [""])
body2.Tip = mirrored4

doc.recompute()
